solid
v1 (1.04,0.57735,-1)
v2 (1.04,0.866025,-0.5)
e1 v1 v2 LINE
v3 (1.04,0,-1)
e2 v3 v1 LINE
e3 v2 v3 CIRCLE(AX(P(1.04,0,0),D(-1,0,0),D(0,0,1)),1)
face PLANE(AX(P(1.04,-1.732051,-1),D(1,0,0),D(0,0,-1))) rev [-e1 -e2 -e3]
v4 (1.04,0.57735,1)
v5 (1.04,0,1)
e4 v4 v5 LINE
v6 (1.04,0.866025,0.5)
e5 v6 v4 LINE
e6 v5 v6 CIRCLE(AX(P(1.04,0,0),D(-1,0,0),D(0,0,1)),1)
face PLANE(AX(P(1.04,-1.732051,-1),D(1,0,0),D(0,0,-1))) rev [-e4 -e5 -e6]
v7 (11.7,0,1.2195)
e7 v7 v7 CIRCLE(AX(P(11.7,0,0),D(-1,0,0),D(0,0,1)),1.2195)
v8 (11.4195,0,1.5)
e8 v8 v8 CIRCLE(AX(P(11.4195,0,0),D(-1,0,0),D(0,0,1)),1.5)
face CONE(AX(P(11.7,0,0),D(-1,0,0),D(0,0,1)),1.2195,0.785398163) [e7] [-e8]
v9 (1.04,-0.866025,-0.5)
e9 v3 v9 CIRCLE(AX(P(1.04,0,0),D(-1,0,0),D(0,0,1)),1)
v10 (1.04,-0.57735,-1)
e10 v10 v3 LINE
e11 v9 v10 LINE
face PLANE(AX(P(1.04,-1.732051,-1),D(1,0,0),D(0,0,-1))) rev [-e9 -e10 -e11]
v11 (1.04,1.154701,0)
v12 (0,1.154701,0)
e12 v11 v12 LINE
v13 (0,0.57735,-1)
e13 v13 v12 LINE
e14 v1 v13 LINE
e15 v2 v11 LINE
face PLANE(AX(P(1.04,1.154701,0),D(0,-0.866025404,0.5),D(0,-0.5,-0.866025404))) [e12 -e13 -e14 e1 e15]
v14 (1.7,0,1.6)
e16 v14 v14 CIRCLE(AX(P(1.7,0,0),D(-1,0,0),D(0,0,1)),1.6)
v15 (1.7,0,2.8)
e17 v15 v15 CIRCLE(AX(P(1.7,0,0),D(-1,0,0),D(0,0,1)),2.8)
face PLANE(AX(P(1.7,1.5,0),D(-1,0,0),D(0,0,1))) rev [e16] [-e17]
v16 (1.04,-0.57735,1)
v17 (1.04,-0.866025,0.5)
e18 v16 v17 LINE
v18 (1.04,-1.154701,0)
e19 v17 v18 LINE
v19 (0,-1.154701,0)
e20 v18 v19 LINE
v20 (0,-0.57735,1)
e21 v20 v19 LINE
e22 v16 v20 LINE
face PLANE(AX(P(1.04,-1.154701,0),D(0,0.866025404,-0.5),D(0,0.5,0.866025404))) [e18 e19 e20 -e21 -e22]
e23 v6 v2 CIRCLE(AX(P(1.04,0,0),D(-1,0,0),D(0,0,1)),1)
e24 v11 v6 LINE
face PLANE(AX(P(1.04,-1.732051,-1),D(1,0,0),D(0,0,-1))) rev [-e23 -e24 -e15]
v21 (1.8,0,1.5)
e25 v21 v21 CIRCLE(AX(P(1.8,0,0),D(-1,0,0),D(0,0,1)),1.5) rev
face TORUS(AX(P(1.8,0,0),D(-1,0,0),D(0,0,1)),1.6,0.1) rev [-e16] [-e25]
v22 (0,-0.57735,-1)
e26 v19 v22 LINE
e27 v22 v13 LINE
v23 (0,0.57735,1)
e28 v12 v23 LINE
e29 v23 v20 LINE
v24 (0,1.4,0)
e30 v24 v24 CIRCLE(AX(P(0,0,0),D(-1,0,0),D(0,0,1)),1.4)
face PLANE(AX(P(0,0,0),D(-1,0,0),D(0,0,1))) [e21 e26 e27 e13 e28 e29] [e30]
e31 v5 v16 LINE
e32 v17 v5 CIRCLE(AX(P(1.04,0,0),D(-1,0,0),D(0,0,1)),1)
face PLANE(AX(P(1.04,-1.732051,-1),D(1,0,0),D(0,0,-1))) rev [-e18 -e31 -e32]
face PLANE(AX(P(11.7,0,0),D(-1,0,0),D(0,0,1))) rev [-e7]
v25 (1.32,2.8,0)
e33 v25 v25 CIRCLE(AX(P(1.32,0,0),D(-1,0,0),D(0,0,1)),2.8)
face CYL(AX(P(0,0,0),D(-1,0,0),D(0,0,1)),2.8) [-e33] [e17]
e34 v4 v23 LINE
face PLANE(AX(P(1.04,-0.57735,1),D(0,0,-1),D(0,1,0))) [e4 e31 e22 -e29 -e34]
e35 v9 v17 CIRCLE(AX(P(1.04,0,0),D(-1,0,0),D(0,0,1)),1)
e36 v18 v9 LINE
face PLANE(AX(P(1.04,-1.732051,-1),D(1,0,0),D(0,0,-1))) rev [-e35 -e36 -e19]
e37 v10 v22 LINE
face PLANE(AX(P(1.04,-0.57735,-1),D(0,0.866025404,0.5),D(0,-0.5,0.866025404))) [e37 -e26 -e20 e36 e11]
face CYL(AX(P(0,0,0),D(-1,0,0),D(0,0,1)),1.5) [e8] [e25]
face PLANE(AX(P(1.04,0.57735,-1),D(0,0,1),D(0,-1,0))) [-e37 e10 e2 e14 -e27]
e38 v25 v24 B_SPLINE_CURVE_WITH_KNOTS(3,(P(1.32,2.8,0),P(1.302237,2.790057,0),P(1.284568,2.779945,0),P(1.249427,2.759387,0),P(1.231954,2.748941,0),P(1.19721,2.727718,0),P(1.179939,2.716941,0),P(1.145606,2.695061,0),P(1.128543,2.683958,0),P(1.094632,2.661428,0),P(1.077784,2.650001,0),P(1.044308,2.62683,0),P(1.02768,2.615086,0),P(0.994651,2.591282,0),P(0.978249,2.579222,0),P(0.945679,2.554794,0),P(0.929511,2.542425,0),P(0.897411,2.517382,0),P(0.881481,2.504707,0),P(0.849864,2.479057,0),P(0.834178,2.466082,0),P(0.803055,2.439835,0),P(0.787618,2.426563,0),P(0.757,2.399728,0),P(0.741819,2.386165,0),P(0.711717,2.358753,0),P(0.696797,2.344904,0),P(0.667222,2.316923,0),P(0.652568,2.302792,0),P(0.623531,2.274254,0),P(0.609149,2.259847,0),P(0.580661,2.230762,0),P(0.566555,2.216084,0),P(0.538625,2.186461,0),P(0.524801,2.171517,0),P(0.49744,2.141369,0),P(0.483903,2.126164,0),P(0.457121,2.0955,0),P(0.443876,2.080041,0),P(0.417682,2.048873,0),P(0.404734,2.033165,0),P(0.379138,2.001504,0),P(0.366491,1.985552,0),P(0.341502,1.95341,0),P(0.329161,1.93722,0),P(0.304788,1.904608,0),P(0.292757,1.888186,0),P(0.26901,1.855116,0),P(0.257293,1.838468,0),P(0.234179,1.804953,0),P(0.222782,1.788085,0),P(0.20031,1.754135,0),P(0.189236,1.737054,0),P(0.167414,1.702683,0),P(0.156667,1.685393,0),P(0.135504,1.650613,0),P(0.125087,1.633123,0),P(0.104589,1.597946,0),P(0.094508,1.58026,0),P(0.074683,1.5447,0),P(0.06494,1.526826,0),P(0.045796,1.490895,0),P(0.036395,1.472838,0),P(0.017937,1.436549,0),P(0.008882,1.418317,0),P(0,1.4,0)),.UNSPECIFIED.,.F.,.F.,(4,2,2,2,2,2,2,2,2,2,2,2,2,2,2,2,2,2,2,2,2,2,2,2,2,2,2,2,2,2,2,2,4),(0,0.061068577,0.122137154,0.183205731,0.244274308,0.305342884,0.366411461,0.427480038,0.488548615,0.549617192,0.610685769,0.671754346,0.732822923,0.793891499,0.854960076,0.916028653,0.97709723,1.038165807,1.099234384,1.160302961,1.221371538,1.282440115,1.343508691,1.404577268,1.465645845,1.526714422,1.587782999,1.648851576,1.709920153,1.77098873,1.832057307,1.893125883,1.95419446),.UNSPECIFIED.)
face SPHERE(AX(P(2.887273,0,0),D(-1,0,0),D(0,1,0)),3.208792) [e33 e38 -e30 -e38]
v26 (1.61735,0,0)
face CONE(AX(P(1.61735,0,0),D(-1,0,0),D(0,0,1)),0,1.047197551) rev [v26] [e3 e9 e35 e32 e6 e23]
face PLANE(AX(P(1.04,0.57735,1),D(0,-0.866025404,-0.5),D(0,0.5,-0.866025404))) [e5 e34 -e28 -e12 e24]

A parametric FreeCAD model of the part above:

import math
import FreeCAD as App
import Part
import Sketcher
Q = App.Units.Quantity


def edges_at(feature, points):
    """Names of the edges that pass closest to the given points."""
    edges = feature.Shape.Edges
    near = lambda p: min(range(len(edges)), key=lambda i: edges[i].distToShape(Part.Vertex(*p))[0])
    return sorted({f"Edge{near(p) + 1}" for p in points})


def add_polygon(sketch, points):
    """Adds a closed chain of lines whose ends are joined by coincident constraints."""
    first, n = sketch.GeometryCount, len(points)
    for a, b in zip(points, points[1:] + points[:1]):
        sketch.addGeometry(Part.LineSegment(App.Vector(*a, 0), App.Vector(*b, 0)), False)
    for i in range(n):
        sketch.addConstraint(Sketcher.Constraint("Coincident", first + i, 2, first + (i + 1) % n, 1))

doc = App.newDocument("Part")
params = doc.addObject("Spreadsheet::Sheet", "Params")
for row, (alias, value) in enumerate([
    ("sketch1_width", "11.7 mm"),
    ("sketch1_height", "1.3 mm"),
    ("sketch1_height2", "1.4 mm"),
    ("sketch1_width2", "0.38 mm"),
    ("revolution_angle", "360 deg"),
    ("fillet_radius", "0.1 mm"),
    ("sketch2_height", "1 mm"),
    ("sketch2_width", "1.04 mm"),
    ("groove_angle", "360 deg"),
    ("pocket1_length", "1.04 mm"),
], start=1):
    params.set(f"A{row}", alias)
    params.set(f"B{row}", "=" + value)
    params.setAlias(f"B{row}", alias)

body = doc.addObject("PartDesign::Body", "Body")

# Sketch on XY plane
sketch1 = body.newObject("Sketcher::SketchObject", "Sketch")
sketch1.AttachmentSupport = (doc.getObject("XY_Plane"), [""])
sketch1.MapMode = "FlatFace"
sketch1.addGeometry(Part.LineSegment(App.Vector(11.7, 0, 0), App.Vector(11.7, 1.22, 0)), False)
sketch1.addGeometry(Part.LineSegment(App.Vector(11.7, 1.22, 0), App.Vector(11.42, 1.5, 0)), False)
sketch1.addGeometry(Part.LineSegment(App.Vector(11.42, 1.5, 0), App.Vector(1.7, 1.5, 0)), False)
sketch1.addGeometry(Part.LineSegment(App.Vector(1.7, 1.5, 0), App.Vector(1.7, 2.8, 0)), False)
sketch1.addGeometry(Part.LineSegment(App.Vector(1.7, 2.8, 0), App.Vector(1.32, 2.8, 0)), False)
sketch1.addGeometry(Part.ArcOfCircle(Part.Circle(App.Vector(2.89, 0, 0), App.Vector(0, 0, 1), 3.21), math.radians(119), math.radians(154)), False)
sketch1.addGeometry(Part.LineSegment(App.Vector(0, 1.4, 0), App.Vector(0, 0, 0)), False)
sketch1.addGeometry(Part.LineSegment(App.Vector(0, 0, 0), App.Vector(11.7, 0, 0)), False)
sketch1.addConstraint(Sketcher.Constraint("Coincident", 0, 2, 1, 1))
sketch1.addConstraint(Sketcher.Constraint("Coincident", 1, 2, 2, 1))
sketch1.addConstraint(Sketcher.Constraint("Coincident", 2, 2, 3, 1))
sketch1.addConstraint(Sketcher.Constraint("Coincident", 3, 2, 4, 1))
sketch1.addConstraint(Sketcher.Constraint("Coincident", 4, 2, 5, 1))
sketch1.addConstraint(Sketcher.Constraint("Coincident", 5, 2, 6, 1))
sketch1.addConstraint(Sketcher.Constraint("Coincident", 6, 2, 7, 1))
sketch1.addConstraint(Sketcher.Constraint("Coincident", 7, 2, 0, 1))
sketch1.addConstraint(Sketcher.Constraint("Vertical", 0))
sketch1.addConstraint(Sketcher.Constraint("Horizontal", 2))
sketch1.addConstraint(Sketcher.Constraint("Vertical", 3))
sketch1.addConstraint(Sketcher.Constraint("Horizontal", 4))
sketch1.addConstraint(Sketcher.Constraint("Vertical", 6))
sketch1.addConstraint(Sketcher.Constraint("Horizontal", 7))
sketch1.addConstraint(Sketcher.Constraint("Coincident", 6, 2, -1, 1))
sketch1.addConstraint(Sketcher.Constraint("PointOnObject", 5, 3, -1))
sketch1.addConstraint(Sketcher.Constraint("Angle", 1, Q("135 deg")))
sketch1.addConstraint(Sketcher.Constraint("DistanceX", 7, 1, 7, 2, 11.7))
sketch1.addConstraint(Sketcher.Constraint("DistanceY", 3, 1, 3, 2, 1.3))
sketch1.addConstraint(Sketcher.Constraint("DistanceY", 6, 2, 6, 1, 1.4))
sketch1.addConstraint(Sketcher.Constraint("DistanceX", 2, 2, 0, 2, 10.0))
sketch1.addConstraint(Sketcher.Constraint("DistanceX", 4, 2, 4, 1, 0.38))
sketch1.addConstraint(Sketcher.Constraint("DistanceY", -1, 1, 1, 2, 1.5))
sketch1.addConstraint(Sketcher.Constraint("DistanceX", 2, 2, 2, 1, 9.7195))
sketch1.setExpression("Constraints[17]", "Params.sketch1_width")
sketch1.setExpression("Constraints[18]", "Params.sketch1_height")
sketch1.setExpression("Constraints[19]", "Params.sketch1_height2")
sketch1.setExpression("Constraints[21]", "Params.sketch1_width2")
revolution = body.newObject("PartDesign::Revolution", "Revolution")
revolution.Profile = sketch1
revolution.ReferenceAxis = (sketch1, ["H_Axis"])
revolution.setExpression("Angle", "Params.revolution_angle")
doc.recompute()

fillet = body.newObject("PartDesign::Fillet", "Fillet")
fillet.Base = (revolution, edges_at(revolution, [(1.7, 0, -1.5)]))
fillet.setExpression("Radius", "Params.fillet_radius")

# Sketch on XY plane
sketch2 = body.newObject("Sketcher::SketchObject", "Sketch001")
sketch2.AttachmentSupport = (doc.getObject("XY_Plane"), [""])
sketch2.MapMode = "FlatFace"
add_polygon(sketch2, [(1, 1), (0, 1), (0, 0), (1.6, 0)])  # lines 0-3
sketch2.addConstraint(Sketcher.Constraint("Horizontal", 0))
sketch2.addConstraint(Sketcher.Constraint("Vertical", 1))
sketch2.addConstraint(Sketcher.Constraint("Horizontal", 2))
sketch2.addConstraint(Sketcher.Constraint("Coincident", 1, 2, -1, 1))
sketch2.addConstraint(Sketcher.Constraint("DistanceY", 1, 2, 1, 1, 1.0))
sketch2.addConstraint(Sketcher.Constraint("Angle", 3, Q("120 deg")))
sketch2.addConstraint(Sketcher.Constraint("DistanceX", 0, 2, 0, 1, 1.04))
sketch2.setExpression("Constraints[8]", "Params.sketch2_height")
sketch2.setExpression("Constraints[10]", "Params.sketch2_width")
groove = body.newObject("PartDesign::Groove", "Groove")
groove.Profile = sketch2
groove.ReferenceAxis = (sketch2, ["H_Axis"])
groove.setExpression("Angle", "Params.groove_angle")

# Sketch on YZ plane
sketch3 = body.newObject("Sketcher::SketchObject", "Sketch002")
sketch3.AttachmentSupport = (doc.getObject("YZ_Plane"), [""])
sketch3.MapMode = "FlatFace"
add_polygon(sketch3, [(0.6, 1), (-0.6, 1), (-1.2, 0), (-0.6, -1), (0.6, -1), (1.2, 0)])  # lines 0-5
sketch3.addConstraint(Sketcher.Constraint("Horizontal", 0))
sketch3.addConstraint(Sketcher.Constraint("Horizontal", 3))
sketch3.addConstraint(Sketcher.Constraint("Symmetric", 0, 2, 3, 2, -1, 1))
sketch3.addConstraint(Sketcher.Constraint("Symmetric", 1, 2, 4, 2, -1, 1))
sketch3.addConstraint(Sketcher.Constraint("PointOnObject", 1, 2, -1))
sketch3.addConstraint(Sketcher.Constraint("Parallel", 2, 5))
sketch3.addConstraint(Sketcher.Constraint("Vertical", 0, 2, 2, 2))
sketch3.addConstraint(Sketcher.Constraint("Angle", 1, Q("-120 deg")))
sketch3.addConstraint(Sketcher.Constraint("DistanceY", -1, 1, 0, 2, 1.0))
sketch3.addConstraint(Sketcher.Constraint("DistanceX", 0, 2, 0, 1, 1.154701))
pocket1 = body.newObject("PartDesign::Pocket", "Pocket")
pocket1.Profile = sketch3
pocket1.setExpression("Length", "Params.pocket1_length")
pocket1.Reversed = True

doc.recompute()
